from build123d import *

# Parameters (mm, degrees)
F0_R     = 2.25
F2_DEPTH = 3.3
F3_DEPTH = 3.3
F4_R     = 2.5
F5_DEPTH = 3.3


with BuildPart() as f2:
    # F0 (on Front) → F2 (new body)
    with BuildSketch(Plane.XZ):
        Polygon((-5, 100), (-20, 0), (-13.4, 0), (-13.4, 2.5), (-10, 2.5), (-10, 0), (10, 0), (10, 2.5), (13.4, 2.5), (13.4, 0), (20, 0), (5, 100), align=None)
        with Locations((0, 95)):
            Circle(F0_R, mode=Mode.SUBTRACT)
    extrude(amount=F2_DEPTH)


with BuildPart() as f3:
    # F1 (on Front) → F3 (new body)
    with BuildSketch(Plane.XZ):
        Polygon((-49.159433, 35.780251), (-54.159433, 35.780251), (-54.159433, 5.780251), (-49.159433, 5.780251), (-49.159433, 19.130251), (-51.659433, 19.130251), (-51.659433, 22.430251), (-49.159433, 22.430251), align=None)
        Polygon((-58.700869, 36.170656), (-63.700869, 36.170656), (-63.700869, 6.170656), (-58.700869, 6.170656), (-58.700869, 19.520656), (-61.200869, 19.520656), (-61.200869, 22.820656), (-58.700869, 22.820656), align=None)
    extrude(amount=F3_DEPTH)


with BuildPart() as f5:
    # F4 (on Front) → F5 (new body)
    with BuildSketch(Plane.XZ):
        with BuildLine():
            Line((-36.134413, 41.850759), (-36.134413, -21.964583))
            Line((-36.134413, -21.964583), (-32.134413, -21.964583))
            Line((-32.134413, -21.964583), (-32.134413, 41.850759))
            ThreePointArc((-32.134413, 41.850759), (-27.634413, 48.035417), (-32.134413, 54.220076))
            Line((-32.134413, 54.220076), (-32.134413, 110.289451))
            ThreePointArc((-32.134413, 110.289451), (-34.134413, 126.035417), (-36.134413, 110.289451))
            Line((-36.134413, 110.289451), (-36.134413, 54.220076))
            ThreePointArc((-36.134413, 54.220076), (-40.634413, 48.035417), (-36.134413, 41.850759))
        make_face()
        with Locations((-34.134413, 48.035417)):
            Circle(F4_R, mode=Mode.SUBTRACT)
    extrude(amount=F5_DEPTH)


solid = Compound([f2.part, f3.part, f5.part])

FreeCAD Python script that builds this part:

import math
import FreeCAD as App
import Part
import Sketcher
from FreeCAD import Vector

doc = App.newDocument("Part")
params = doc.addObject("Spreadsheet::Sheet", "Params")
for row, (alias, value) in enumerate([
    ("sketch1_diameter", "4.5 mm"),
    ("sketch1_width", "20 mm"),
    ("sketch1_width2", "10 mm"),
    ("sketch1_width3", "6.6 mm"),
    ("sketch1_width4", "3.4 mm"),
    ("pad1_length", "3.3 mm"),
    ("sketch2_width", "5 mm"),
    ("sketch2_height", "30 mm"),
    ("sketch2_width2", "2.5 mm"),
    ("sketch2_height2", "3.3 mm"),
    ("pad2_length", "3.3 mm"),
    ("sketch3_diameter", "5 mm"),
    ("sketch3_radius", "8 mm"),
    ("sketch3_radius2", "6.5 mm"),
    ("sketch3_width", "4 mm"),
    ("pad3_length", "3.3 mm"),
], start=1):
    params.set(f"A{row}", alias)
    params.set(f"B{row}", "=" + value)
    params.setAlias(f"B{row}", alias)

body = doc.addObject("PartDesign::Body", "Body")

# Sketch on XZ plane
sketch1 = doc.addObject("Sketcher::SketchObject", "Sketch")
body.addObject(sketch1)
sketch1.AttachmentSupport = (doc.XZ_Plane, [""])
sketch1.MapMode = "FlatFace"
sketch1.addGeometry(Part.LineSegment(Vector(-5, 100, 0), Vector(-20, 0, 0)), False)
sketch1.addGeometry(Part.LineSegment(Vector(-20, 0, 0), Vector(-13.4, 0, 0)), False)
sketch1.addGeometry(Part.LineSegment(Vector(-13.4, 0, 0), Vector(-13.4, 2.5, 0)), False)
sketch1.addGeometry(Part.LineSegment(Vector(-13.4, 2.5, 0), Vector(-10, 2.5, 0)), False)
sketch1.addGeometry(Part.LineSegment(Vector(-10, 2.5, 0), Vector(-10, 0, 0)), False)
sketch1.addGeometry(Part.LineSegment(Vector(-10, 0, 0), Vector(10, 0, 0)), False)
sketch1.addGeometry(Part.LineSegment(Vector(10, 0, 0), Vector(10, 2.5, 0)), False)
sketch1.addGeometry(Part.LineSegment(Vector(10, 2.5, 0), Vector(13.4, 2.5, 0)), False)
sketch1.addGeometry(Part.LineSegment(Vector(13.4, 2.5, 0), Vector(13.4, 0, 0)), False)
sketch1.addGeometry(Part.LineSegment(Vector(13.4, 0, 0), Vector(20, 0, 0)), False)
sketch1.addGeometry(Part.LineSegment(Vector(20, 0, 0), Vector(5, 100, 0)), False)
sketch1.addGeometry(Part.LineSegment(Vector(5, 100, 0), Vector(-5, 100, 0)), False)
sketch1.addGeometry(Part.Circle(Vector(0, 95, 0), Vector(0, 0, 1), 2.2), False)
sketch1.addConstraint(Sketcher.Constraint("Coincident", 0, 2, 1, 1))
sketch1.addConstraint(Sketcher.Constraint("Coincident", 1, 2, 2, 1))
sketch1.addConstraint(Sketcher.Constraint("Coincident", 2, 2, 3, 1))
sketch1.addConstraint(Sketcher.Constraint("Coincident", 3, 2, 4, 1))
sketch1.addConstraint(Sketcher.Constraint("Coincident", 4, 2, 5, 1))
sketch1.addConstraint(Sketcher.Constraint("Coincident", 5, 2, 6, 1))
sketch1.addConstraint(Sketcher.Constraint("Coincident", 6, 2, 7, 1))
sketch1.addConstraint(Sketcher.Constraint("Coincident", 7, 2, 8, 1))
sketch1.addConstraint(Sketcher.Constraint("Coincident", 8, 2, 9, 1))
sketch1.addConstraint(Sketcher.Constraint("Coincident", 9, 2, 10, 1))
sketch1.addConstraint(Sketcher.Constraint("Coincident", 10, 2, 11, 1))
sketch1.addConstraint(Sketcher.Constraint("Coincident", 11, 2, 0, 1))
sketch1.addConstraint(Sketcher.Constraint("Horizontal", 1))
sketch1.addConstraint(Sketcher.Constraint("Vertical", 2))
sketch1.addConstraint(Sketcher.Constraint("Horizontal", 3))
sketch1.addConstraint(Sketcher.Constraint("Vertical", 4))
sketch1.addConstraint(Sketcher.Constraint("Horizontal", 5))
sketch1.addConstraint(Sketcher.Constraint("Vertical", 6))
sketch1.addConstraint(Sketcher.Constraint("Horizontal", 7))
sketch1.addConstraint(Sketcher.Constraint("Vertical", 8))
sketch1.addConstraint(Sketcher.Constraint("Horizontal", 9))
sketch1.addConstraint(Sketcher.Constraint("Horizontal", 11))
sketch1.addConstraint(Sketcher.Constraint("Symmetric", 4, 2, 5, 2, -1, 1))
sketch1.addConstraint(Sketcher.Constraint("Symmetric", 1, 2, 8, 2, -1, 1))
sketch1.addConstraint(Sketcher.Constraint("Symmetric", 0, 2, 9, 2, -2))
sketch1.addConstraint(Sketcher.Constraint("PointOnObject", 12, 3, -2))
sketch1.addConstraint(Sketcher.Constraint("Horizontal", 3, 2, 6, 2))
sketch1.addConstraint(Sketcher.Constraint("Equal", 0, 10))
sketch1.addConstraint(Sketcher.Constraint("Diameter", 12, 4.5))
sketch1.addConstraint(Sketcher.Constraint("DistanceX", 5, 1, 5, 2, 20.0))
sketch1.addConstraint(Sketcher.Constraint("DistanceX", 11, 2, 11, 1, 10.0))
sketch1.addConstraint(Sketcher.Constraint("DistanceX", 1, 1, 1, 2, 6.6))
sketch1.addConstraint(Sketcher.Constraint("DistanceX", 3, 1, 3, 2, 3.4))
sketch1.addConstraint(Sketcher.Constraint("DistanceY", 2, 1, 2, 2, 2.5))
sketch1.addConstraint(Sketcher.Constraint("DistanceY", -1, 1, 12, 3, 95.0))
sketch1.addConstraint(Sketcher.Constraint("DistanceY", -1, 1, 10, 2, 100.0))
sketch1.setExpression("Constraints[28]", "Params.sketch1_diameter")
sketch1.setExpression("Constraints[29]", "Params.sketch1_width")
sketch1.setExpression("Constraints[30]", "Params.sketch1_width2")
sketch1.setExpression("Constraints[31]", "Params.sketch1_width3")
sketch1.setExpression("Constraints[32]", "Params.sketch1_width4")
pad1 = doc.addObject("PartDesign::Pad", "Pad")
body.addObject(pad1)
pad1.Profile = sketch1
pad1.setExpression("Length", "Params.pad1_length")
body2 = doc.addObject("PartDesign::Body", "Body001")
body2.AllowCompound = True

# Sketch on XZ plane
sketch2 = doc.addObject("Sketcher::SketchObject", "Sketch001")
body2.addObject(sketch2)
sketch2.AttachmentSupport = (doc.getObject("XZ_Plane001"), [""])
sketch2.MapMode = "FlatFace"
sketch2.addGeometry(Part.LineSegment(Vector(-49.2, 35.8, 0), Vector(-54.2, 35.8, 0)), False)
sketch2.addGeometry(Part.LineSegment(Vector(-54.2, 35.8, 0), Vector(-54.2, 5.8, 0)), False)
sketch2.addGeometry(Part.LineSegment(Vector(-54.2, 5.8, 0), Vector(-49.2, 5.8, 0)), False)
sketch2.addGeometry(Part.LineSegment(Vector(-49.2, 5.8, 0), Vector(-49.2, 19.1, 0)), False)
sketch2.addGeometry(Part.LineSegment(Vector(-49.2, 19.1, 0), Vector(-51.7, 19.1, 0)), False)
sketch2.addGeometry(Part.LineSegment(Vector(-51.7, 19.1, 0), Vector(-51.7, 22.4, 0)), False)
sketch2.addGeometry(Part.LineSegment(Vector(-51.7, 22.4, 0), Vector(-49.2, 22.4, 0)), False)
sketch2.addGeometry(Part.LineSegment(Vector(-49.2, 22.4, 0), Vector(-49.2, 35.8, 0)), False)
sketch2.addGeometry(Part.LineSegment(Vector(-58.7, 36.2, 0), Vector(-63.7, 36.2, 0)), False)
sketch2.addGeometry(Part.LineSegment(Vector(-63.7, 36.2, 0), Vector(-63.7, 6.2, 0)), False)
sketch2.addGeometry(Part.LineSegment(Vector(-63.7, 6.2, 0), Vector(-58.7, 6.2, 0)), False)
sketch2.addGeometry(Part.LineSegment(Vector(-58.7, 6.2, 0), Vector(-58.7, 19.5, 0)), False)
sketch2.addGeometry(Part.LineSegment(Vector(-58.7, 19.5, 0), Vector(-61.2, 19.5, 0)), False)
sketch2.addGeometry(Part.LineSegment(Vector(-61.2, 19.5, 0), Vector(-61.2, 22.8, 0)), False)
sketch2.addGeometry(Part.LineSegment(Vector(-61.2, 22.8, 0), Vector(-58.7, 22.8, 0)), False)
sketch2.addGeometry(Part.LineSegment(Vector(-58.7, 22.8, 0), Vector(-58.7, 36.2, 0)), False)
sketch2.addConstraint(Sketcher.Constraint("Coincident", 0, 2, 1, 1))
sketch2.addConstraint(Sketcher.Constraint("Coincident", 1, 2, 2, 1))
sketch2.addConstraint(Sketcher.Constraint("Coincident", 2, 2, 3, 1))
sketch2.addConstraint(Sketcher.Constraint("Coincident", 3, 2, 4, 1))
sketch2.addConstraint(Sketcher.Constraint("Coincident", 4, 2, 5, 1))
sketch2.addConstraint(Sketcher.Constraint("Coincident", 5, 2, 6, 1))
sketch2.addConstraint(Sketcher.Constraint("Coincident", 6, 2, 7, 1))
sketch2.addConstraint(Sketcher.Constraint("Coincident", 7, 2, 0, 1))
sketch2.addConstraint(Sketcher.Constraint("Coincident", 8, 2, 9, 1))
sketch2.addConstraint(Sketcher.Constraint("Coincident", 9, 2, 10, 1))
sketch2.addConstraint(Sketcher.Constraint("Coincident", 10, 2, 11, 1))
sketch2.addConstraint(Sketcher.Constraint("Coincident", 11, 2, 12, 1))
sketch2.addConstraint(Sketcher.Constraint("Coincident", 12, 2, 13, 1))
sketch2.addConstraint(Sketcher.Constraint("Coincident", 13, 2, 14, 1))
sketch2.addConstraint(Sketcher.Constraint("Coincident", 14, 2, 15, 1))
sketch2.addConstraint(Sketcher.Constraint("Coincident", 15, 2, 8, 1))
sketch2.addConstraint(Sketcher.Constraint("Horizontal", 0))
sketch2.addConstraint(Sketcher.Constraint("Vertical", 1))
sketch2.addConstraint(Sketcher.Constraint("Horizontal", 2))
sketch2.addConstraint(Sketcher.Constraint("Vertical", 3))
sketch2.addConstraint(Sketcher.Constraint("Horizontal", 4))
sketch2.addConstraint(Sketcher.Constraint("Vertical", 5))
sketch2.addConstraint(Sketcher.Constraint("Horizontal", 6))
sketch2.addConstraint(Sketcher.Constraint("Vertical", 7))
sketch2.addConstraint(Sketcher.Constraint("Horizontal", 8))
sketch2.addConstraint(Sketcher.Constraint("Vertical", 9))
sketch2.addConstraint(Sketcher.Constraint("Horizontal", 10))
sketch2.addConstraint(Sketcher.Constraint("Vertical", 11))
sketch2.addConstraint(Sketcher.Constraint("Horizontal", 12))
sketch2.addConstraint(Sketcher.Constraint("Vertical", 13))
sketch2.addConstraint(Sketcher.Constraint("Horizontal", 14))
sketch2.addConstraint(Sketcher.Constraint("Vertical", 15))
sketch2.addConstraint(Sketcher.Constraint("Vertical", 3, 2, 6, 2))
sketch2.addConstraint(Sketcher.Constraint("Vertical", 11, 2, 14, 2))
sketch2.addConstraint(Sketcher.Constraint("Equal", 2, 8))
sketch2.addConstraint(Sketcher.Constraint("Equal", 6, 12))
sketch2.addConstraint(Sketcher.Constraint("Equal", 3, 7))
sketch2.addConstraint(Sketcher.Constraint("Equal", 1, 9))
sketch2.addConstraint(Sketcher.Constraint("Equal", 7, 11))
sketch2.addConstraint(Sketcher.Constraint("Equal", 5, 13))
sketch2.addConstraint(Sketcher.Constraint("DistanceX", 0, 2, 0, 1, 5.0))
sketch2.addConstraint(Sketcher.Constraint("DistanceY", 1, 2, 1, 1, 30.0))
sketch2.addConstraint(Sketcher.Constraint("DistanceX", 4, 2, 4, 1, 2.5))
sketch2.addConstraint(Sketcher.Constraint("DistanceY", 5, 1, 5, 2, 3.3))
sketch2.addConstraint(Sketcher.Constraint("DistanceY", -1, 1, 0, 2, 35.780251))
sketch2.addConstraint(Sketcher.Constraint("DistanceX", 8, 2, -1, 1, 63.700869))
sketch2.addConstraint(Sketcher.Constraint("DistanceX", 0, 2, -1, 1, 54.159433))
sketch2.addConstraint(Sketcher.Constraint("DistanceY", -1, 1, 8, 2, 36.170656))
sketch2.setExpression("Constraints[40]", "Params.sketch2_width")
sketch2.setExpression("Constraints[41]", "Params.sketch2_height")
sketch2.setExpression("Constraints[42]", "Params.sketch2_width2")
sketch2.setExpression("Constraints[43]", "Params.sketch2_height2")
pad2 = doc.addObject("PartDesign::Pad", "Pad001")
body2.addObject(pad2)
pad2.Profile = sketch2
pad2.setExpression("Length", "Params.pad2_length")
body3 = doc.addObject("PartDesign::Body", "Body002")

# Sketch on XZ plane
sketch3 = doc.addObject("Sketcher::SketchObject", "Sketch002")
body3.addObject(sketch3)
sketch3.AttachmentSupport = (doc.getObject("XZ_Plane002"), [""])
sketch3.MapMode = "FlatFace"
sketch3.addGeometry(Part.LineSegment(Vector(-36.1, 41.9, 0), Vector(-36.1, -22, 0)), False)
sketch3.addGeometry(Part.LineSegment(Vector(-36.1, -22, 0), Vector(-32.1, -22, 0)), False)
sketch3.addGeometry(Part.LineSegment(Vector(-32.1, -22, 0), Vector(-32.1, 41.9, 0)), False)
sketch3.addGeometry(Part.ArcOfCircle(Part.Circle(Vector(-34.1, 48, 0), Vector(0, 0, 1), 6.5), math.radians(-72), math.radians(72)), False)
sketch3.addGeometry(Part.LineSegment(Vector(-32.1, 54.2, 0), Vector(-32.1, 110.3, 0)), False)
sketch3.addGeometry(Part.ArcOfCircle(Part.Circle(Vector(-34.1, 118, 0), Vector(0, 0, 1), 8), math.radians(-76), math.radians(256)), False)
sketch3.addGeometry(Part.LineSegment(Vector(-36.1, 110.3, 0), Vector(-36.1, 54.2, 0)), False)
sketch3.addGeometry(Part.ArcOfCircle(Part.Circle(Vector(-34.1, 48, 0), Vector(0, 0, 1), 6.5), math.radians(108), math.radians(252)), False)
sketch3.addGeometry(Part.Circle(Vector(-34.1, 48, 0), Vector(0, 0, 1), 2.5), False)
sketch3.addConstraint(Sketcher.Constraint("Coincident", 0, 2, 1, 1))
sketch3.addConstraint(Sketcher.Constraint("Coincident", 1, 2, 2, 1))
sketch3.addConstraint(Sketcher.Constraint("Coincident", 2, 2, 3, 1))
sketch3.addConstraint(Sketcher.Constraint("Coincident", 3, 2, 4, 1))
sketch3.addConstraint(Sketcher.Constraint("Coincident", 4, 2, 5, 1))
sketch3.addConstraint(Sketcher.Constraint("Coincident", 5, 2, 6, 1))
sketch3.addConstraint(Sketcher.Constraint("Coincident", 6, 2, 7, 1))
sketch3.addConstraint(Sketcher.Constraint("Coincident", 7, 2, 0, 1))
sketch3.addConstraint(Sketcher.Constraint("Vertical", 0))
sketch3.addConstraint(Sketcher.Constraint("Horizontal", 1))
sketch3.addConstraint(Sketcher.Constraint("Vertical", 2))
sketch3.addConstraint(Sketcher.Constraint("Vertical", 4))
sketch3.addConstraint(Sketcher.Constraint("Vertical", 6))
sketch3.addConstraint(Sketcher.Constraint("Coincident", 7, 3, 3, 3))
sketch3.addConstraint(Sketcher.Constraint("Coincident", 8, 3, 3, 3))
sketch3.addConstraint(Sketcher.Constraint("Equal", 3, 7))
sketch3.addConstraint(Sketcher.Constraint("Horizontal", 4, 2, 5, 2))
sketch3.addConstraint(Sketcher.Constraint("Horizontal", 3, 2, 6, 2))
sketch3.addConstraint(Sketcher.Constraint("Horizontal", 2, 2, 7, 2))
sketch3.addConstraint(Sketcher.Constraint("Vertical", 2, 2, 3, 2))
sketch3.addConstraint(Sketcher.Constraint("Diameter", 8, 5.0))
sketch3.addConstraint(Sketcher.Constraint("Radius", 5, 8.0))
sketch3.addConstraint(Sketcher.Constraint("Radius", 3, 6.5))
sketch3.addConstraint(Sketcher.Constraint("DistanceX", 1, 1, 1, 2, 4.0))
sketch3.addConstraint(Sketcher.Constraint("DistanceY", 3, 3, 5, 3, 70.0))
sketch3.addConstraint(Sketcher.Constraint("DistanceY", 0, 2, 8, 3, 70.0))
sketch3.addConstraint(Sketcher.Constraint("DistanceY", -1, 1, 2, 2, 41.850759))
sketch3.addConstraint(Sketcher.Constraint("DistanceX", 3, 3, -1, 1, 34.134413))
sketch3.setExpression("Constraints[20]", "Params.sketch3_diameter")
sketch3.setExpression("Constraints[21]", "Params.sketch3_radius")
sketch3.setExpression("Constraints[22]", "Params.sketch3_radius2")
sketch3.setExpression("Constraints[23]", "Params.sketch3_width")
pad3 = doc.addObject("PartDesign::Pad", "Pad002")
body3.addObject(pad3)
pad3.Profile = sketch3
pad3.setExpression("Length", "Params.pad3_length")

doc.recompute()
